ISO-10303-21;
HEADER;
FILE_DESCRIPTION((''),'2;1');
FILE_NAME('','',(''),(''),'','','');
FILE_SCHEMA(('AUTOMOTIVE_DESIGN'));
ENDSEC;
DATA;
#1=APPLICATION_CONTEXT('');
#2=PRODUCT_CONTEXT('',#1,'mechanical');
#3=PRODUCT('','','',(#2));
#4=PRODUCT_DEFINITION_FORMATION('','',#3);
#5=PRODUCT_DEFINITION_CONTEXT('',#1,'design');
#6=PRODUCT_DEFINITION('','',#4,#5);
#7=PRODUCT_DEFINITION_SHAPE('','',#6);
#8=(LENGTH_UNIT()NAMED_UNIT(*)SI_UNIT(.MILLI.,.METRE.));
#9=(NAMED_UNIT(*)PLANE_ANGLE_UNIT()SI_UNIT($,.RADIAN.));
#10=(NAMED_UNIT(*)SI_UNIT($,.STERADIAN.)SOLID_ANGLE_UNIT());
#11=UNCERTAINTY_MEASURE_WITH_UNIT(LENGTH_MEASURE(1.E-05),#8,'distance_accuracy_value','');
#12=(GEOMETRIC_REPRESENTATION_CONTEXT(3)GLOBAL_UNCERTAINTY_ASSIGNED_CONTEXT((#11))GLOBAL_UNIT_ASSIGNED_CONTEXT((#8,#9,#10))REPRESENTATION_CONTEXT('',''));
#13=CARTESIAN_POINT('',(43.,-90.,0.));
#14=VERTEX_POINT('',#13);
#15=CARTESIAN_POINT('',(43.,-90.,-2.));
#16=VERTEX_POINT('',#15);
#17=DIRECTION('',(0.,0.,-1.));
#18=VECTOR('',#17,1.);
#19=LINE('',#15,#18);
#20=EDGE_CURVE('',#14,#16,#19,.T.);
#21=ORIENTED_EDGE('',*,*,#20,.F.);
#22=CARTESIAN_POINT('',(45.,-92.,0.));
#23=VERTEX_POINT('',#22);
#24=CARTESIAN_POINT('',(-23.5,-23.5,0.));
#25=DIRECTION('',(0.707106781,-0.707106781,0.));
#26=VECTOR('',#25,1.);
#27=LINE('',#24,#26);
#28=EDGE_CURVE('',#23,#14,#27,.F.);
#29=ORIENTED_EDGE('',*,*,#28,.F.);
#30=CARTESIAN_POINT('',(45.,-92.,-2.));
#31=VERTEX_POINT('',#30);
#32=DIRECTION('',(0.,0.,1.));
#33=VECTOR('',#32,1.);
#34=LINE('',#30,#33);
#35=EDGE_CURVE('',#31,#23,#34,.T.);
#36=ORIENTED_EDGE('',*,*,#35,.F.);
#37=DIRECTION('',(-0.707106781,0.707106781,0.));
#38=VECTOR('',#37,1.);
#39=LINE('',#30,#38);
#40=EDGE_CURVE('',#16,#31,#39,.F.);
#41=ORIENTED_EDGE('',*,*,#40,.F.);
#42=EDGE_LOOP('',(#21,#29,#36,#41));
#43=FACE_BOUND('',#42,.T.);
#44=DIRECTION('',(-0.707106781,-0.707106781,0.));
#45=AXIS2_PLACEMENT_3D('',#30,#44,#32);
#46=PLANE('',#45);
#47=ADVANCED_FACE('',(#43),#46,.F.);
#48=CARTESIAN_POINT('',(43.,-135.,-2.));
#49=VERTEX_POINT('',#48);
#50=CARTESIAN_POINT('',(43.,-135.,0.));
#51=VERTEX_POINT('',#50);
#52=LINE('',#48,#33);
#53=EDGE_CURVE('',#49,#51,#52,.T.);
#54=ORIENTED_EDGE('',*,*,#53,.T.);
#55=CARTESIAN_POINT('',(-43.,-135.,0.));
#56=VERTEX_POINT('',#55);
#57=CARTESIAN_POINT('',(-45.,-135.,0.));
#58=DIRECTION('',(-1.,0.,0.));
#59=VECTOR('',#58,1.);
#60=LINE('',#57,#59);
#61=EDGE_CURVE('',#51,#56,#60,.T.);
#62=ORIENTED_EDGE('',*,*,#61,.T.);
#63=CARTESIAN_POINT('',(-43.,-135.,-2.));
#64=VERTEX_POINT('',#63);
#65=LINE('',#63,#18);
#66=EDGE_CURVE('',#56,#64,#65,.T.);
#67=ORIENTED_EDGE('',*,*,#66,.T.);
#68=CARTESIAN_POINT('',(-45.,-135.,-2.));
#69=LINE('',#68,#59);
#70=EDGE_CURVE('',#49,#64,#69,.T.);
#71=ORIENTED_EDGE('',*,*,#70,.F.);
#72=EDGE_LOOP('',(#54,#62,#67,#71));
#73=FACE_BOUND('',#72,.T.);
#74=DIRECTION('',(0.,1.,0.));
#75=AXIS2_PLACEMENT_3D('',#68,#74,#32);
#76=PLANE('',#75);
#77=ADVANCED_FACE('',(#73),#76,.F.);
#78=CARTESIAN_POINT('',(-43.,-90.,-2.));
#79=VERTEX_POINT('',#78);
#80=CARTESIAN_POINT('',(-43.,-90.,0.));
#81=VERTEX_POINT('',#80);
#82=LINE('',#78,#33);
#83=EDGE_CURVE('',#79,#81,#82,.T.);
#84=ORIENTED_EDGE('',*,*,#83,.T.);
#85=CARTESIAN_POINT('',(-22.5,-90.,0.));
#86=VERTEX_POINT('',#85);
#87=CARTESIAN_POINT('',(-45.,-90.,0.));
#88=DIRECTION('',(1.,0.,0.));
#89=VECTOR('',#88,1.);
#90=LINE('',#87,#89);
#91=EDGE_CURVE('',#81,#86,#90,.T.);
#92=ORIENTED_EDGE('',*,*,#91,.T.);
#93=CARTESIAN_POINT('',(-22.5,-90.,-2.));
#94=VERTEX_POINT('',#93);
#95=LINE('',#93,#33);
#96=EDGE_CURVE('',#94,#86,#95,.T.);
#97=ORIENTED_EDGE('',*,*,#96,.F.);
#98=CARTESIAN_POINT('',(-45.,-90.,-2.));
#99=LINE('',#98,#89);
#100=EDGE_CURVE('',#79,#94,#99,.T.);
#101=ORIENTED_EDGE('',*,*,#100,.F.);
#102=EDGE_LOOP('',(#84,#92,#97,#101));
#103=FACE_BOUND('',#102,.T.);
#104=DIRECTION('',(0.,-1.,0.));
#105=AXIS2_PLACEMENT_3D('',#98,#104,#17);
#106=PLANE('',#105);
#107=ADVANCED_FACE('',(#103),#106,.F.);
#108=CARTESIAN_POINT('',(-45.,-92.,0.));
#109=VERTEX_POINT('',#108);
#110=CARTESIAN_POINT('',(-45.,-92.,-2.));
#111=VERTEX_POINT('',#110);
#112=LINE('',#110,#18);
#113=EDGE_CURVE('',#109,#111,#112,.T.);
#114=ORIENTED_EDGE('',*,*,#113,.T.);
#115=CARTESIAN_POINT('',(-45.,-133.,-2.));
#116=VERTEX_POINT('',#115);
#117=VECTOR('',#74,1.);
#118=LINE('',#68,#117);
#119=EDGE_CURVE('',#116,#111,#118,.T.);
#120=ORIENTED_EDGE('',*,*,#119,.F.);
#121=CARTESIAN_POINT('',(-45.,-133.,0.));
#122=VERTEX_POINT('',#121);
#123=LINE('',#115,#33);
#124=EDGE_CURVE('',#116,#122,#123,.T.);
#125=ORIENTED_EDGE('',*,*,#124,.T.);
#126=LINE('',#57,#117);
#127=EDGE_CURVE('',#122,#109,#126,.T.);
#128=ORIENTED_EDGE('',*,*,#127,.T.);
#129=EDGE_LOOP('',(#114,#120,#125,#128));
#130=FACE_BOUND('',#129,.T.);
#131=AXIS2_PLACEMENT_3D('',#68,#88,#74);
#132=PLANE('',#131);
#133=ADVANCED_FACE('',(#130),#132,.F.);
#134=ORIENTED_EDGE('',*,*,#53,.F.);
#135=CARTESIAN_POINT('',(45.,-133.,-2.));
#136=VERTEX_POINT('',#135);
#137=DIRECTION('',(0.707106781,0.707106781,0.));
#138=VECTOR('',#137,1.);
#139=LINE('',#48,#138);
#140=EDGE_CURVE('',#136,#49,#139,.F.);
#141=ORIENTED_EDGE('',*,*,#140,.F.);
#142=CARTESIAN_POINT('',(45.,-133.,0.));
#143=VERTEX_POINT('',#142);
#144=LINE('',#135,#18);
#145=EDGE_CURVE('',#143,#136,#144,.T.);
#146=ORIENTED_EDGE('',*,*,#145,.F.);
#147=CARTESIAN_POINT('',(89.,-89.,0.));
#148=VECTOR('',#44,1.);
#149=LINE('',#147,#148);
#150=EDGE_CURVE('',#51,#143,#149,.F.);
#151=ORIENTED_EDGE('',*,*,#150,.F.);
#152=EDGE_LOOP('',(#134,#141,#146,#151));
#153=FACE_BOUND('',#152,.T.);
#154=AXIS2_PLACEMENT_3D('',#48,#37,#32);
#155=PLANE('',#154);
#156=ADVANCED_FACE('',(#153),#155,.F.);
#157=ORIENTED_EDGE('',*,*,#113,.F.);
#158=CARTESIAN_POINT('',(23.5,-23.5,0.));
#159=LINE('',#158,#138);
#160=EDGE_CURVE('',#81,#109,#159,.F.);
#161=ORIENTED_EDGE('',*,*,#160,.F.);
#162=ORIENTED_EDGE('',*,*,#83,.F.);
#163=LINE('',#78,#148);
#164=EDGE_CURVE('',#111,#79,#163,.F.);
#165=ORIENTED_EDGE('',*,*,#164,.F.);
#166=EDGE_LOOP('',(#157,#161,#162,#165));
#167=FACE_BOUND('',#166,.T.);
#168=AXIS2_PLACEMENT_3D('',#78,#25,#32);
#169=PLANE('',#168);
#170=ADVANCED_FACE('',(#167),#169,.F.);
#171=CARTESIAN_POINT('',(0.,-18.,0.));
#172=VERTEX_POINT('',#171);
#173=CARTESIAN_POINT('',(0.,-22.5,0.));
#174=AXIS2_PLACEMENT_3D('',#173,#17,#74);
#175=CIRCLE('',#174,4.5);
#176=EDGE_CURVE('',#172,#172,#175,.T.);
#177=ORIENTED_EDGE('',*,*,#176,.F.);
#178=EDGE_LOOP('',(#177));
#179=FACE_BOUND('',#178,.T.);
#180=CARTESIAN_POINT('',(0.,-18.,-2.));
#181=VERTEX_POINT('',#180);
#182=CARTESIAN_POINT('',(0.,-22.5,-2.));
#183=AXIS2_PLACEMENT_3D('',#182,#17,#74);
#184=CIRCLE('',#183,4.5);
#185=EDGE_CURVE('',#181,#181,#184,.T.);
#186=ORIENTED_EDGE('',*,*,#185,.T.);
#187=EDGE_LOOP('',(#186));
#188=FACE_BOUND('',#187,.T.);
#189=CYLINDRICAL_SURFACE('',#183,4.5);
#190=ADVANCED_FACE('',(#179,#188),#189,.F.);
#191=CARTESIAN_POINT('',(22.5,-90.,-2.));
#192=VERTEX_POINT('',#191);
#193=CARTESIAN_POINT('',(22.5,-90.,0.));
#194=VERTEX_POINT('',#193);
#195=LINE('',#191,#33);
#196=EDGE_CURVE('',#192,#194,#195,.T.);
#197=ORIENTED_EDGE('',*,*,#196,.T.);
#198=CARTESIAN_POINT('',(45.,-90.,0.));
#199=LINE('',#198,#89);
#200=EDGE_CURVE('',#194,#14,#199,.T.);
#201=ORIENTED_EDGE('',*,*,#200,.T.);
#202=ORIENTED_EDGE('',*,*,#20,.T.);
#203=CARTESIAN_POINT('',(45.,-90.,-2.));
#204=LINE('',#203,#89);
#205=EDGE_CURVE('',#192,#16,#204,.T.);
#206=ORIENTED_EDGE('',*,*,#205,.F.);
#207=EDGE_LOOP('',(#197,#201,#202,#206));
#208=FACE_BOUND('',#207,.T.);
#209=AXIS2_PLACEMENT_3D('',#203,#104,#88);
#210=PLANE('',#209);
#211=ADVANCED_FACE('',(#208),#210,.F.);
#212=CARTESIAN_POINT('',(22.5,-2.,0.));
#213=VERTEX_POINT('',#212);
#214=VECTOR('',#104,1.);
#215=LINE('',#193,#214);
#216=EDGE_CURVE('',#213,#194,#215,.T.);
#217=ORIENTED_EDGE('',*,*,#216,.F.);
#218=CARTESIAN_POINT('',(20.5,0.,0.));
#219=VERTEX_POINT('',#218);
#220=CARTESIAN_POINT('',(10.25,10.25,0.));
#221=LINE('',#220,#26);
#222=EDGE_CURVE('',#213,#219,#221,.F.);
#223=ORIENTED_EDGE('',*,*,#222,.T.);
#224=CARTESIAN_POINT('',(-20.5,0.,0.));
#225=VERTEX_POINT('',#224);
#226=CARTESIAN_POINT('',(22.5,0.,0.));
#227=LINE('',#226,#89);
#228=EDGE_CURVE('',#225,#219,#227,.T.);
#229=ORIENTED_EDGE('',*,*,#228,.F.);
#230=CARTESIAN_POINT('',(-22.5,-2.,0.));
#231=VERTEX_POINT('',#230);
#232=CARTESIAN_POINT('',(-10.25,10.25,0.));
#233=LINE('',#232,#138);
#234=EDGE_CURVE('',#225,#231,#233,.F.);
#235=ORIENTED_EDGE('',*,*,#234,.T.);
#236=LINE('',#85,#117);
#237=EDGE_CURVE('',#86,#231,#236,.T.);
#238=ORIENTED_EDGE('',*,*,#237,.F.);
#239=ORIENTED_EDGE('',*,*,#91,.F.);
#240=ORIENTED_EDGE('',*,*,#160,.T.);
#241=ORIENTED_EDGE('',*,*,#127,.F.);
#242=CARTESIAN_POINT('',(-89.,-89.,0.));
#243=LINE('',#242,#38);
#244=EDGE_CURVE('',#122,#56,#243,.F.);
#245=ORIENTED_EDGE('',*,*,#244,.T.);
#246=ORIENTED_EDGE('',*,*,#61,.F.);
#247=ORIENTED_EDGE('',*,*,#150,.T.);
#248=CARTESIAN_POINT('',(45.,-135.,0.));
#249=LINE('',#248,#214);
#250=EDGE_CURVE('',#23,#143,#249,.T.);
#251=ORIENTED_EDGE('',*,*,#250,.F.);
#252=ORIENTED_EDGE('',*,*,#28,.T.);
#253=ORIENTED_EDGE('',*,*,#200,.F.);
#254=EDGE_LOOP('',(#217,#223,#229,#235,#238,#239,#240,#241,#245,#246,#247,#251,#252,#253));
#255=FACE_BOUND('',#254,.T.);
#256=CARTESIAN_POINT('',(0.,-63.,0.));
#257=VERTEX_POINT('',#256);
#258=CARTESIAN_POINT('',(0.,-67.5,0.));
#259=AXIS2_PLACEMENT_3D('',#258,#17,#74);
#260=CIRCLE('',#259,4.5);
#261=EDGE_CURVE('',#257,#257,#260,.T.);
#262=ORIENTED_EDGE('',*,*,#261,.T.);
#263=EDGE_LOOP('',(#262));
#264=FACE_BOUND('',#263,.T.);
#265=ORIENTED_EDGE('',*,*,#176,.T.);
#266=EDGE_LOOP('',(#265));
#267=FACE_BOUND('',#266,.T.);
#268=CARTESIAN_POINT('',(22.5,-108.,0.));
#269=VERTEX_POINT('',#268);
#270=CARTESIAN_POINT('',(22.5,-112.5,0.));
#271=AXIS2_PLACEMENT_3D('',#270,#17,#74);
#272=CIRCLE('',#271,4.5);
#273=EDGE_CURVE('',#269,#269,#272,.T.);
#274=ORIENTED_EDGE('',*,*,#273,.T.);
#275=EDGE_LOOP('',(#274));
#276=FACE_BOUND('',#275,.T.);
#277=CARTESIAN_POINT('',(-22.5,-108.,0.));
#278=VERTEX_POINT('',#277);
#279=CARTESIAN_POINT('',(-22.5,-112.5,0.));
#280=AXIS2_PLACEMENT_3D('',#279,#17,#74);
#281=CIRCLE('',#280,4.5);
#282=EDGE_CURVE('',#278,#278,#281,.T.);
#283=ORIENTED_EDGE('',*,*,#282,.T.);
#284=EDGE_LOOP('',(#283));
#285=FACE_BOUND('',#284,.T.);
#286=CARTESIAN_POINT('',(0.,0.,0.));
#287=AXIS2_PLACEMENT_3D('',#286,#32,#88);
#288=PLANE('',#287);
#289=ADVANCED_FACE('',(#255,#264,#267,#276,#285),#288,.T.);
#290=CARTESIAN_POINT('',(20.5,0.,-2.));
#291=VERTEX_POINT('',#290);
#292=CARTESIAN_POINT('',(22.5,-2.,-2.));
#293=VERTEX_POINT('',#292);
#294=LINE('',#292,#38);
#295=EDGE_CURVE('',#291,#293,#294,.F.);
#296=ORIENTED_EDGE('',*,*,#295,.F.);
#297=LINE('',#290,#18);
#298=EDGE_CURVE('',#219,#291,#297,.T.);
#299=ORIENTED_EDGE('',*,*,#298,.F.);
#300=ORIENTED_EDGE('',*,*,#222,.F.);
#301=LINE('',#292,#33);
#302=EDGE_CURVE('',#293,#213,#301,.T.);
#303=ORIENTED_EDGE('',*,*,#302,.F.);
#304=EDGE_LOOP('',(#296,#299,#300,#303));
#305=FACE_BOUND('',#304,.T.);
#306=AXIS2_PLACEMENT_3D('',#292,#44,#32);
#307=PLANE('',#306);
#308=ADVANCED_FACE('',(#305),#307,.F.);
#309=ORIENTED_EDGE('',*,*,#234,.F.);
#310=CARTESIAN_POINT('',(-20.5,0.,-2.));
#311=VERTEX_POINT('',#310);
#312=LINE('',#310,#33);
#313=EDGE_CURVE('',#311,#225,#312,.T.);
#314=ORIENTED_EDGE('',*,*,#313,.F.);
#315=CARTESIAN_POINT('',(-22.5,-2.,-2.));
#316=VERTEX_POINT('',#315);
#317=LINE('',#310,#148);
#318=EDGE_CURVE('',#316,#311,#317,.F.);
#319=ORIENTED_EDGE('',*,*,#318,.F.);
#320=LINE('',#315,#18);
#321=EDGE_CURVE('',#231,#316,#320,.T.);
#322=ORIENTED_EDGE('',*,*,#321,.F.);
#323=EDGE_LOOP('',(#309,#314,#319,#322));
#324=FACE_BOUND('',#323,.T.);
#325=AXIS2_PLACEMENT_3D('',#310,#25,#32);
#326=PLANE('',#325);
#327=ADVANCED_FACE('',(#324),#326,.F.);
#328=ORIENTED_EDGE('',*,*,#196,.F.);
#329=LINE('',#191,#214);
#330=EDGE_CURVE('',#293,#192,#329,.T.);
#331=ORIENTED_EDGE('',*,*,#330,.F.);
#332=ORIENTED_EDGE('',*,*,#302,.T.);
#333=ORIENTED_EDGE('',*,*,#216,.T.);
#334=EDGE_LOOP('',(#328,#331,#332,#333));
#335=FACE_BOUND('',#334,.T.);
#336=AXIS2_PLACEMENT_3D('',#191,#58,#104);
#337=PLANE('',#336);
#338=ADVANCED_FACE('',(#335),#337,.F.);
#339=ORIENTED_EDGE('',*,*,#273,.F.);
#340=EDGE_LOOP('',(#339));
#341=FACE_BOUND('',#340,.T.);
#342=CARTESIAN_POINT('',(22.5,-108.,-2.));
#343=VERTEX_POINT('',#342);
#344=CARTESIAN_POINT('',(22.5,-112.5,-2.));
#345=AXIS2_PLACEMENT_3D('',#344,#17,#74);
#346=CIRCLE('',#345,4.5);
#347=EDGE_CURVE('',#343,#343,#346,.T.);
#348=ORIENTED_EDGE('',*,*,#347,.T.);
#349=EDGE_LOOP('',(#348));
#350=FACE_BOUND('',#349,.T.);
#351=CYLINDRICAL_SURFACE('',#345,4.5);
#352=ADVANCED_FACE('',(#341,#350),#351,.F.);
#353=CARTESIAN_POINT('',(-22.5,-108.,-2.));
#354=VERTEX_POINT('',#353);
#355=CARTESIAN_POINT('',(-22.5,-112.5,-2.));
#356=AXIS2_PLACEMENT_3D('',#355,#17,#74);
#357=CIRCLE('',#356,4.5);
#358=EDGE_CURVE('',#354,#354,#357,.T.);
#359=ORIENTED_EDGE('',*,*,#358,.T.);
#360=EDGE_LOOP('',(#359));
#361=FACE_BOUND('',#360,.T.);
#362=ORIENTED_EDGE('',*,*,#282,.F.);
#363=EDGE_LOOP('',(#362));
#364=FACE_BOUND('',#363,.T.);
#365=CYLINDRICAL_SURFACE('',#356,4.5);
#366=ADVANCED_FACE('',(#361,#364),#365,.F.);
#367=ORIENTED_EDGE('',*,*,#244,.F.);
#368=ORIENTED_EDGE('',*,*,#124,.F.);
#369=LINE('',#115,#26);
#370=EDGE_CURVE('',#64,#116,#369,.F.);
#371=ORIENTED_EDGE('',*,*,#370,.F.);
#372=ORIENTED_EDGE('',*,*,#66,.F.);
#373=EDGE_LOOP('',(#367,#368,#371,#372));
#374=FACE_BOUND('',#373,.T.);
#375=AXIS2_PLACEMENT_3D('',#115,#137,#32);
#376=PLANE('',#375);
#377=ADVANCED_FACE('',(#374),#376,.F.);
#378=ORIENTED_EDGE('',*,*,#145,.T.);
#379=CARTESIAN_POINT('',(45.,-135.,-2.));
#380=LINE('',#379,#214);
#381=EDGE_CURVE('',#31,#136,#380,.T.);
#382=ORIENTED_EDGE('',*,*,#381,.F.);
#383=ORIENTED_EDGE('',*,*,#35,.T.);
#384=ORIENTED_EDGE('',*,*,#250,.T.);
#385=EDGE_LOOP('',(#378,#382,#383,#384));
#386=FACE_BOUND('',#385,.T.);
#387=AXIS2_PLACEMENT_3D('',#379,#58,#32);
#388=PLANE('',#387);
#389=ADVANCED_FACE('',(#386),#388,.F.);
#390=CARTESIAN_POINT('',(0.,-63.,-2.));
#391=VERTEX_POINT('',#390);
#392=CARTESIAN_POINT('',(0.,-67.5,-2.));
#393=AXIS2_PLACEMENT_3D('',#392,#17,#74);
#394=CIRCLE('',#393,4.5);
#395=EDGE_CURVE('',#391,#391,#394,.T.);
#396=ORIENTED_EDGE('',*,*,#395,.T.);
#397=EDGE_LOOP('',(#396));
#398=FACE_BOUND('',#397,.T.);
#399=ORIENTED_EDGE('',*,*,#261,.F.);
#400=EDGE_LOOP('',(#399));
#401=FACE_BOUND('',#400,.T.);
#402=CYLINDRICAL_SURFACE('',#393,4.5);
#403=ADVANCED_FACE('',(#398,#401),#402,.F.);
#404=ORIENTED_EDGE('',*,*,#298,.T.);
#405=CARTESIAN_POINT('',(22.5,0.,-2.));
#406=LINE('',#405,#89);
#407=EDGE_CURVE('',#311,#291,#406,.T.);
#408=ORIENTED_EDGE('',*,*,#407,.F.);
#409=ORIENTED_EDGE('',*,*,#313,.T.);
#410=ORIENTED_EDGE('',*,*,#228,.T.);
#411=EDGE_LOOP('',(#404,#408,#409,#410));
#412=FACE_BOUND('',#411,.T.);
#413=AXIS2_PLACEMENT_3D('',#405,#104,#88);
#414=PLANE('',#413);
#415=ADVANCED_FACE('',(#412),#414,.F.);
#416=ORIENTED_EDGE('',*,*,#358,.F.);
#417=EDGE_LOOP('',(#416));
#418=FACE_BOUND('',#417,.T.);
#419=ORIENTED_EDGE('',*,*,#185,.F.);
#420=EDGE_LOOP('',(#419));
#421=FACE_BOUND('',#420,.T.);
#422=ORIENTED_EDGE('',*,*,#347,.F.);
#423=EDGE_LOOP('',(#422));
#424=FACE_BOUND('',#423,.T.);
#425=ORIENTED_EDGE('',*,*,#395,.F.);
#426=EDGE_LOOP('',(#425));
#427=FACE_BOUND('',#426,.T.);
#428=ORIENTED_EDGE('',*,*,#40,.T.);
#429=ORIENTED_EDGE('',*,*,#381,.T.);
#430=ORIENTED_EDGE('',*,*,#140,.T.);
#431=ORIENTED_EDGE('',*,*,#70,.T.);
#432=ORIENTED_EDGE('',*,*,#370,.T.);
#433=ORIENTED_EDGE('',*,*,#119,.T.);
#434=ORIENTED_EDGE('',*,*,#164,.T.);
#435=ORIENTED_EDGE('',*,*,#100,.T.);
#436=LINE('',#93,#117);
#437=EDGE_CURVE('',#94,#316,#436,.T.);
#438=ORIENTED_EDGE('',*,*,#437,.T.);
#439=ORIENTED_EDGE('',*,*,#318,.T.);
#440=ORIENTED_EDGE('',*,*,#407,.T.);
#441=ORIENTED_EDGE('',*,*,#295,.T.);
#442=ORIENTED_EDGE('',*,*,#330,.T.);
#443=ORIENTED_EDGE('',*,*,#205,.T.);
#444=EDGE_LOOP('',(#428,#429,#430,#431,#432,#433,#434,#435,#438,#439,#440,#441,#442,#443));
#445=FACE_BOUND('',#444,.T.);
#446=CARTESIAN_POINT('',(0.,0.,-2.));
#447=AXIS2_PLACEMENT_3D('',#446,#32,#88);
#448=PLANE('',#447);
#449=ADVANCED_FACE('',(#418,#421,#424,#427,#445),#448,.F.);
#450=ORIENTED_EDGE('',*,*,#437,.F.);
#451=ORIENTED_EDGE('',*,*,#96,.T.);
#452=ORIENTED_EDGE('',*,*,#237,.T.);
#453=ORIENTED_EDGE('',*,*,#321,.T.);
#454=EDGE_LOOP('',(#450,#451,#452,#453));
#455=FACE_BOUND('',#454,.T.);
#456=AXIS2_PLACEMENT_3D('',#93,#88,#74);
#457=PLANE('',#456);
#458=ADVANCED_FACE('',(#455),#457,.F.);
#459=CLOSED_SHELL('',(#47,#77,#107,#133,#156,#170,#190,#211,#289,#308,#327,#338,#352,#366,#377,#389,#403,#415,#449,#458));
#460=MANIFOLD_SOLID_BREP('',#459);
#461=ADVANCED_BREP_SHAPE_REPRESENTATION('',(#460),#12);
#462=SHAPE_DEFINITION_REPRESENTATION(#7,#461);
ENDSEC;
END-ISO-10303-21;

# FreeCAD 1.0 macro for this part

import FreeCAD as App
import Part
import Sketcher

V = App.Vector
Q = App.Units.Quantity


def edges_at(feature, points):
    """Names of the edges that pass closest to the given points."""
    edges = feature.Shape.Edges
    near = lambda p: min(range(len(edges)), key=lambda i: edges[i].distToShape(Part.Vertex(*p))[0])
    return sorted({f"Edge{near(p) + 1}" for p in points})

doc = App.newDocument("Part")
body = doc.addObject("PartDesign::Body", "Body")

# Sketch on XY plane
sketch1 = body.newObject("Sketcher::SketchObject", "Sketch")
sketch1.AttachmentSupport = (doc.getObject("XY_Plane"), [""])
sketch1.MapMode = "FlatFace"
sketch1.addGeometry([
    Part.LineSegment(V(45, -135, 0), V(-45, -135, 0)),  # 0
    Part.LineSegment(V(-45, -135, 0), V(-45, -90, 0)),  # 1
    Part.LineSegment(V(-45, -90, 0), V(-22, -90, 0)),  # 2
    Part.LineSegment(V(-22, -90, 0), V(-22, 0, 0)),  # 3
    Part.LineSegment(V(-22, 0, 0), V(22, 0, 0)),  # 4
    Part.LineSegment(V(22, 0, 0), V(22, -90, 0)),  # 5
    Part.LineSegment(V(22, -90, 0), V(45, -90, 0)),  # 6
    Part.LineSegment(V(45, -90, 0), V(45, -135, 0)),  # 7
], False)
sketch1.addConstraint([
    Sketcher.Constraint("Coincident", 0, 2, 1, 1),
    Sketcher.Constraint("Coincident", 1, 2, 2, 1),
    Sketcher.Constraint("Coincident", 2, 2, 3, 1),
    Sketcher.Constraint("Coincident", 3, 2, 4, 1),
    Sketcher.Constraint("Coincident", 4, 2, 5, 1),
    Sketcher.Constraint("Coincident", 5, 2, 6, 1),
    Sketcher.Constraint("Coincident", 6, 2, 7, 1),
    Sketcher.Constraint("Coincident", 7, 2, 0, 1),
    Sketcher.Constraint("Horizontal", 0),
    Sketcher.Constraint("Vertical", 1),
    Sketcher.Constraint("Horizontal", 2),
    Sketcher.Constraint("Vertical", 3),
    Sketcher.Constraint("Horizontal", 4),
    Sketcher.Constraint("Vertical", 5),
    Sketcher.Constraint("Horizontal", 6),
    Sketcher.Constraint("Vertical", 7),
    Sketcher.Constraint("Symmetric", 3, 2, 4, 2, -1, 1),
    Sketcher.Constraint("Symmetric", 1, 2, 6, 2, -2),
    Sketcher.Constraint("Equal", 4, 1),
    Sketcher.Constraint("Equal", 0, 3),
    Sketcher.Constraint("DistanceX", 0, 2, 0, 1, Q("90 mm")),
    Sketcher.Constraint("DistanceX", 4, 1, 4, 2, Q("45 mm")),
])
pad1 = body.newObject("PartDesign::Pad", "Pad")
pad1.Profile = sketch1
pad1.Length = 2
pad1.Reversed = True

# Sketch on XY plane
sketch2 = body.newObject("Sketcher::SketchObject", "Sketch001")
sketch2.AttachmentSupport = (doc.getObject("XY_Plane"), [""])
sketch2.MapMode = "FlatFace"
sketch2.AttachmentOffset = App.Placement(V(0, 0, -2), App.Rotation())
sketch2.addGeometry([
    Part.Circle(V(0, -22.5, 0), V(0, 0, 1), 4.5),
    Part.Circle(V(-22.5, -112.5, 0), V(0, 0, 1), 4.5),
    Part.Circle(V(22.5, -112.5, 0), V(0, 0, 1), 4.5),
    Part.Circle(V(0, -67.5, 0), V(0, 0, 1), 4.5),
], False)
sketch2.addConstraint([
    Sketcher.Constraint("Equal", 0, 1),
    Sketcher.Constraint("Equal", 1, 2),
    Sketcher.Constraint("Equal", 2, 3),
    Sketcher.Constraint("Symmetric", 1, 3, 2, 3, -2),
    Sketcher.Constraint("PointOnObject", 0, 3, -2),
    Sketcher.Constraint("PointOnObject", 3, 3, -2),
    Sketcher.Constraint("Diameter", 0, Q("9 mm")),
    Sketcher.Constraint("DistanceY", 1, 3, 0, 3, Q("90 mm")),
    Sketcher.Constraint("DistanceX", 1, 3, 2, 3, Q("45 mm")),
    Sketcher.Constraint("DistanceY", 3, 3, 0, 3, Q("45 mm")),
    Sketcher.Constraint("DistanceY", 0, 3, -1, 1, Q("22.5 mm")),
])
doc.recompute()
hole = body.newObject("PartDesign::Hole", "Hole")
hole.Profile = sketch2
hole.ThreadType = "None"
hole.Diameter = 9
hole.DepthType = "ThroughAll"
hole.Reversed = True
doc.recompute()

chamfer = body.newObject("PartDesign::Chamfer", "Chamfer")
chamfer.Base = (hole, edges_at(hole, [
    (-45, -90, -1),
    (-45, -135, -1),
    (45, -135, -1),
    (45, -90, -1),
    (22.5, 0, -1),
    (-22.5, 0, -1),
]))
chamfer.Size = 2

doc.recompute()
